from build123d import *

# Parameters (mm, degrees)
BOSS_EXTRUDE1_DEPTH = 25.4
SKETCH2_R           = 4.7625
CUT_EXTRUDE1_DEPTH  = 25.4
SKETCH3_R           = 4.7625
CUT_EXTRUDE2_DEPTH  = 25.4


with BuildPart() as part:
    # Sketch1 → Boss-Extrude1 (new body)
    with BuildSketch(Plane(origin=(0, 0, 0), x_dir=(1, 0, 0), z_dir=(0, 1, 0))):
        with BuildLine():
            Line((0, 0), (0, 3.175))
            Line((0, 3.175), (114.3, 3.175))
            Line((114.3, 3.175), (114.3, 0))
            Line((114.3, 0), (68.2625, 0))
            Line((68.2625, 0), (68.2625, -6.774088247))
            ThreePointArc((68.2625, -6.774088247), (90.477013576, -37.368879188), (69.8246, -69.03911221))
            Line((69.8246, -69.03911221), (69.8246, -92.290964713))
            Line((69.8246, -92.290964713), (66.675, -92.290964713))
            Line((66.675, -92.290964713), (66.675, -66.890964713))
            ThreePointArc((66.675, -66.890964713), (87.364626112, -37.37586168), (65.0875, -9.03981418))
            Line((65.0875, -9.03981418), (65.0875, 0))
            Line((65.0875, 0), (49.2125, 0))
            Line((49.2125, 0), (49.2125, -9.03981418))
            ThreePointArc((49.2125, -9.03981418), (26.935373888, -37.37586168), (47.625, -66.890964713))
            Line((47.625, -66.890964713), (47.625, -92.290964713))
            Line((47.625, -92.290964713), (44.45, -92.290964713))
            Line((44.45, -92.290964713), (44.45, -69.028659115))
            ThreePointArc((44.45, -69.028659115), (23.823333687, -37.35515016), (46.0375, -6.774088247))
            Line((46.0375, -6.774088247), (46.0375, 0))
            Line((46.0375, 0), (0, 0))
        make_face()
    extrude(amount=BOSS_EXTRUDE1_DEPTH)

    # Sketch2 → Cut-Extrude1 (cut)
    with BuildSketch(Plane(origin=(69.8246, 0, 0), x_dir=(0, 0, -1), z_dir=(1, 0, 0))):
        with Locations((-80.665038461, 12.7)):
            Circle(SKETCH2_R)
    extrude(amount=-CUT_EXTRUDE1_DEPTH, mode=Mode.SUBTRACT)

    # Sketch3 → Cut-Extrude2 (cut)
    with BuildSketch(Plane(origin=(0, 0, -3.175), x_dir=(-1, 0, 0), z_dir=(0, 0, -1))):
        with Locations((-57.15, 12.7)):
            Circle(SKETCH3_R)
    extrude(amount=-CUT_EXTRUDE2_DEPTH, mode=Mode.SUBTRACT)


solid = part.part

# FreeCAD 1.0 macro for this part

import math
import FreeCAD as App
import Part
import Sketcher

V = App.Vector
Q = App.Units.Quantity

doc = App.newDocument("Part")
body = doc.addObject("PartDesign::Body", "Body")

sketch1 = body.newObject("Sketcher::SketchObject", "Sketch")
sketch1.AttachmentSupport = (doc.getObject("XZ_Plane"), [""])
sketch1.MapMode = "FlatFace"
sketch1.addGeometry([
    Part.LineSegment(V(0, -3.2, 0), V(0, 0, 0)),
    Part.LineSegment(V(0, 0, 0), V(46, 0, 0)),
    Part.LineSegment(V(46, 0, 0), V(46, 6.8, 0)),
    Part.ArcOfCircle(Part.Circle(V(57.1, 38.2, 0), V(0, 0, 1), 33.3), math.radians(112), math.radians(251)),
    Part.LineSegment(V(44.5, 69, 0), V(44.5, 92.3, 0)),
    Part.LineSegment(V(44.5, 92.3, 0), V(47.6, 92.3, 0)),
    Part.LineSegment(V(47.6, 92.3, 0), V(47.6, 66.9, 0)),
    Part.ArcOfCircle(Part.Circle(V(57.1, 38.2, 0), V(0, 0, 1), 30.2), math.radians(108), math.radians(255)),
    Part.LineSegment(V(49.2, 9, 0), V(49.2, 0, 0)),
    Part.LineSegment(V(49.2, 0, 0), V(65.1, 0, 0)),
    Part.LineSegment(V(65.1, 0, 0), V(65.1, 9, 0)),
    Part.ArcOfCircle(Part.Circle(V(57.2, 38.2, 0), V(0, 0, 1), 30.2), math.radians(-75), math.radians(72)),
    Part.LineSegment(V(66.7, 66.9, 0), V(66.7, 92.3, 0)),
    Part.LineSegment(V(66.7, 92.3, 0), V(69.8, 92.3, 0)),
    Part.LineSegment(V(69.8, 92.3, 0), V(69.8, 69, 0)),
    Part.ArcOfCircle(Part.Circle(V(57.1, 38.2, 0), V(0, 0, 1), 33.3), math.radians(-71), math.radians(68)),
    Part.LineSegment(V(68.3, 6.8, 0), V(68.3, 0, 0)),
    Part.LineSegment(V(68.3, 0, 0), V(114.3, 0, 0)),
    Part.LineSegment(V(114.3, 0, 0), V(114.3, -3.2, 0)),
    Part.LineSegment(V(114.3, -3.2, 0), V(0, -3.2, 0)),
], False)
sketch1.addConstraint([
    Sketcher.Constraint("Coincident", 0, 2, 1, 1),
    Sketcher.Constraint("Coincident", 1, 2, 2, 1),
    Sketcher.Constraint("Coincident", 2, 2, 3, 2),
    Sketcher.Constraint("Coincident", 3, 1, 4, 1),
    Sketcher.Constraint("Coincident", 4, 2, 5, 1),
    Sketcher.Constraint("Coincident", 5, 2, 6, 1),
    Sketcher.Constraint("Coincident", 6, 2, 7, 1),
    Sketcher.Constraint("Coincident", 7, 2, 8, 1),
    Sketcher.Constraint("Coincident", 8, 2, 9, 1),
    Sketcher.Constraint("Coincident", 9, 2, 10, 1),
    Sketcher.Constraint("Coincident", 10, 2, 11, 1),
    Sketcher.Constraint("Coincident", 11, 2, 12, 1),
    Sketcher.Constraint("Coincident", 12, 2, 13, 1),
    Sketcher.Constraint("Coincident", 13, 2, 14, 1),
    Sketcher.Constraint("Coincident", 14, 2, 15, 2),
    Sketcher.Constraint("Coincident", 15, 1, 16, 1),
    Sketcher.Constraint("Coincident", 16, 2, 17, 1),
    Sketcher.Constraint("Coincident", 17, 2, 18, 1),
    Sketcher.Constraint("Coincident", 18, 2, 19, 1),
    Sketcher.Constraint("Coincident", 19, 2, 0, 1),
    Sketcher.Constraint("Vertical", 0),
    Sketcher.Constraint("Horizontal", 1),
    Sketcher.Constraint("Vertical", 2),
    Sketcher.Constraint("Vertical", 4),
    Sketcher.Constraint("Horizontal", 5),
    Sketcher.Constraint("Vertical", 6),
    Sketcher.Constraint("Vertical", 8),
    Sketcher.Constraint("Horizontal", 9),
    Sketcher.Constraint("Vertical", 10),
    Sketcher.Constraint("Vertical", 12),
    Sketcher.Constraint("Horizontal", 13),
    Sketcher.Constraint("Vertical", 14),
    Sketcher.Constraint("Vertical", 16),
    Sketcher.Constraint("Horizontal", 17),
    Sketcher.Constraint("Vertical", 18),
    Sketcher.Constraint("Horizontal", 19),
    Sketcher.Constraint("Coincident", 0, 2, -1, 1),
    Sketcher.Constraint("Coincident", 7, 3, 3, 3),
    Sketcher.Constraint("Coincident", 11, 3, 3, 3),
    Sketcher.Constraint("Coincident", 15, 3, 3, 3),
    Sketcher.Constraint("Equal", 7, 11),
    Sketcher.Constraint("Equal", 3, 15),
    Sketcher.Constraint("PointOnObject", 8, 2, -1),
    Sketcher.Constraint("PointOnObject", 16, 2, -1),
    Sketcher.Constraint("Horizontal", 7, 2, 10, 2),
    Sketcher.Constraint("Horizontal", 6, 2, 11, 2),
    Sketcher.Constraint("Horizontal", 5, 2, 12, 2),
    Sketcher.Constraint("Horizontal", 2, 2, 15, 1),
    Sketcher.Constraint("Equal", 1, 17),
    Sketcher.Constraint("Equal", 5, 0),
    Sketcher.Constraint("DistanceY", 6, 2, 6, 1, Q("1 in")),
    Sketcher.Constraint("Radius", 7, Q("1.19 in")),
    Sketcher.Constraint("DistanceX", 19, 2, 19, 1, Q("4.5 in")),
    Sketcher.Constraint("Radius", 3, Q("1.3125 in")),
    Sketcher.Constraint("DistanceX", 3, 1, 7, 3, Q("0.5 in")),
    Sketcher.Constraint("DistanceX", 1, 1, 1, 2, Q("1.8125 in")),
    Sketcher.Constraint("DistanceX", 5, 1, 5, 2, Q("0.125 in")),
    Sketcher.Constraint("DistanceX", 9, 1, 9, 2, Q("0.625 in")),
    Sketcher.Constraint("DistanceX", 13, 1, 13, 2, Q("0.124 in")),
    Sketcher.Constraint("DistanceY", 2, 1, 2, 2, Q("6.774088 mm")),
])
pad1 = body.newObject("PartDesign::Pad", "Pad")
pad1.Profile = sketch1
pad1.Length = Q("1 in")
pad1.Reversed = True

sketch2 = body.newObject("Sketcher::SketchObject", "Sketch001")
sketch2.AttachmentSupport = (doc.getObject("YZ_Plane"), [""])
sketch2.MapMode = "FlatFace"
sketch2.AttachmentOffset = App.Placement(V(0, 0, 2.749 * 25.4), App.Rotation())
sketch2.addGeometry(Part.Circle(V(12.7, 80.7, 0), V(0, 0, 1), 4.8), False)
sketch2.addConstraint([
    Sketcher.Constraint("Diameter", 0, Q("0.375 in")),
    Sketcher.Constraint("DistanceX", -1, 1, 0, 3, Q("0.5 in")),
    Sketcher.Constraint("DistanceY", -1, 1, 0, 3, Q("80.665038 mm")),
])
pocket1 = body.newObject("PartDesign::Pocket", "Pocket")
pocket1.Profile = sketch2
pocket1.Length = Q("1 in")

sketch3 = body.newObject("Sketcher::SketchObject", "Sketch002")
sketch3.AttachmentSupport = (doc.getObject("XY_Plane"), [""])
sketch3.MapMode = "FlatFace"
sketch3.AttachmentOffset = App.Placement(V(0, 0, -0.125 * 25.4), App.Rotation())
sketch3.addGeometry(Part.Circle(V(57.1, 12.7, 0), V(0, 0, 1), 4.8), False)
sketch3.addConstraint([
    Sketcher.Constraint("Diameter", 0, Q("0.375 in")),
    Sketcher.Constraint("DistanceY", -1, 1, 0, 3, Q("0.5 in")),
    Sketcher.Constraint("DistanceX", -1, 1, 0, 3, Q("2.25 in")),
])
pocket2 = body.newObject("PartDesign::Pocket", "Pocket001")
pocket2.Profile = sketch3
pocket2.Length = Q("1 in")
pocket2.Reversed = True

doc.recompute()
